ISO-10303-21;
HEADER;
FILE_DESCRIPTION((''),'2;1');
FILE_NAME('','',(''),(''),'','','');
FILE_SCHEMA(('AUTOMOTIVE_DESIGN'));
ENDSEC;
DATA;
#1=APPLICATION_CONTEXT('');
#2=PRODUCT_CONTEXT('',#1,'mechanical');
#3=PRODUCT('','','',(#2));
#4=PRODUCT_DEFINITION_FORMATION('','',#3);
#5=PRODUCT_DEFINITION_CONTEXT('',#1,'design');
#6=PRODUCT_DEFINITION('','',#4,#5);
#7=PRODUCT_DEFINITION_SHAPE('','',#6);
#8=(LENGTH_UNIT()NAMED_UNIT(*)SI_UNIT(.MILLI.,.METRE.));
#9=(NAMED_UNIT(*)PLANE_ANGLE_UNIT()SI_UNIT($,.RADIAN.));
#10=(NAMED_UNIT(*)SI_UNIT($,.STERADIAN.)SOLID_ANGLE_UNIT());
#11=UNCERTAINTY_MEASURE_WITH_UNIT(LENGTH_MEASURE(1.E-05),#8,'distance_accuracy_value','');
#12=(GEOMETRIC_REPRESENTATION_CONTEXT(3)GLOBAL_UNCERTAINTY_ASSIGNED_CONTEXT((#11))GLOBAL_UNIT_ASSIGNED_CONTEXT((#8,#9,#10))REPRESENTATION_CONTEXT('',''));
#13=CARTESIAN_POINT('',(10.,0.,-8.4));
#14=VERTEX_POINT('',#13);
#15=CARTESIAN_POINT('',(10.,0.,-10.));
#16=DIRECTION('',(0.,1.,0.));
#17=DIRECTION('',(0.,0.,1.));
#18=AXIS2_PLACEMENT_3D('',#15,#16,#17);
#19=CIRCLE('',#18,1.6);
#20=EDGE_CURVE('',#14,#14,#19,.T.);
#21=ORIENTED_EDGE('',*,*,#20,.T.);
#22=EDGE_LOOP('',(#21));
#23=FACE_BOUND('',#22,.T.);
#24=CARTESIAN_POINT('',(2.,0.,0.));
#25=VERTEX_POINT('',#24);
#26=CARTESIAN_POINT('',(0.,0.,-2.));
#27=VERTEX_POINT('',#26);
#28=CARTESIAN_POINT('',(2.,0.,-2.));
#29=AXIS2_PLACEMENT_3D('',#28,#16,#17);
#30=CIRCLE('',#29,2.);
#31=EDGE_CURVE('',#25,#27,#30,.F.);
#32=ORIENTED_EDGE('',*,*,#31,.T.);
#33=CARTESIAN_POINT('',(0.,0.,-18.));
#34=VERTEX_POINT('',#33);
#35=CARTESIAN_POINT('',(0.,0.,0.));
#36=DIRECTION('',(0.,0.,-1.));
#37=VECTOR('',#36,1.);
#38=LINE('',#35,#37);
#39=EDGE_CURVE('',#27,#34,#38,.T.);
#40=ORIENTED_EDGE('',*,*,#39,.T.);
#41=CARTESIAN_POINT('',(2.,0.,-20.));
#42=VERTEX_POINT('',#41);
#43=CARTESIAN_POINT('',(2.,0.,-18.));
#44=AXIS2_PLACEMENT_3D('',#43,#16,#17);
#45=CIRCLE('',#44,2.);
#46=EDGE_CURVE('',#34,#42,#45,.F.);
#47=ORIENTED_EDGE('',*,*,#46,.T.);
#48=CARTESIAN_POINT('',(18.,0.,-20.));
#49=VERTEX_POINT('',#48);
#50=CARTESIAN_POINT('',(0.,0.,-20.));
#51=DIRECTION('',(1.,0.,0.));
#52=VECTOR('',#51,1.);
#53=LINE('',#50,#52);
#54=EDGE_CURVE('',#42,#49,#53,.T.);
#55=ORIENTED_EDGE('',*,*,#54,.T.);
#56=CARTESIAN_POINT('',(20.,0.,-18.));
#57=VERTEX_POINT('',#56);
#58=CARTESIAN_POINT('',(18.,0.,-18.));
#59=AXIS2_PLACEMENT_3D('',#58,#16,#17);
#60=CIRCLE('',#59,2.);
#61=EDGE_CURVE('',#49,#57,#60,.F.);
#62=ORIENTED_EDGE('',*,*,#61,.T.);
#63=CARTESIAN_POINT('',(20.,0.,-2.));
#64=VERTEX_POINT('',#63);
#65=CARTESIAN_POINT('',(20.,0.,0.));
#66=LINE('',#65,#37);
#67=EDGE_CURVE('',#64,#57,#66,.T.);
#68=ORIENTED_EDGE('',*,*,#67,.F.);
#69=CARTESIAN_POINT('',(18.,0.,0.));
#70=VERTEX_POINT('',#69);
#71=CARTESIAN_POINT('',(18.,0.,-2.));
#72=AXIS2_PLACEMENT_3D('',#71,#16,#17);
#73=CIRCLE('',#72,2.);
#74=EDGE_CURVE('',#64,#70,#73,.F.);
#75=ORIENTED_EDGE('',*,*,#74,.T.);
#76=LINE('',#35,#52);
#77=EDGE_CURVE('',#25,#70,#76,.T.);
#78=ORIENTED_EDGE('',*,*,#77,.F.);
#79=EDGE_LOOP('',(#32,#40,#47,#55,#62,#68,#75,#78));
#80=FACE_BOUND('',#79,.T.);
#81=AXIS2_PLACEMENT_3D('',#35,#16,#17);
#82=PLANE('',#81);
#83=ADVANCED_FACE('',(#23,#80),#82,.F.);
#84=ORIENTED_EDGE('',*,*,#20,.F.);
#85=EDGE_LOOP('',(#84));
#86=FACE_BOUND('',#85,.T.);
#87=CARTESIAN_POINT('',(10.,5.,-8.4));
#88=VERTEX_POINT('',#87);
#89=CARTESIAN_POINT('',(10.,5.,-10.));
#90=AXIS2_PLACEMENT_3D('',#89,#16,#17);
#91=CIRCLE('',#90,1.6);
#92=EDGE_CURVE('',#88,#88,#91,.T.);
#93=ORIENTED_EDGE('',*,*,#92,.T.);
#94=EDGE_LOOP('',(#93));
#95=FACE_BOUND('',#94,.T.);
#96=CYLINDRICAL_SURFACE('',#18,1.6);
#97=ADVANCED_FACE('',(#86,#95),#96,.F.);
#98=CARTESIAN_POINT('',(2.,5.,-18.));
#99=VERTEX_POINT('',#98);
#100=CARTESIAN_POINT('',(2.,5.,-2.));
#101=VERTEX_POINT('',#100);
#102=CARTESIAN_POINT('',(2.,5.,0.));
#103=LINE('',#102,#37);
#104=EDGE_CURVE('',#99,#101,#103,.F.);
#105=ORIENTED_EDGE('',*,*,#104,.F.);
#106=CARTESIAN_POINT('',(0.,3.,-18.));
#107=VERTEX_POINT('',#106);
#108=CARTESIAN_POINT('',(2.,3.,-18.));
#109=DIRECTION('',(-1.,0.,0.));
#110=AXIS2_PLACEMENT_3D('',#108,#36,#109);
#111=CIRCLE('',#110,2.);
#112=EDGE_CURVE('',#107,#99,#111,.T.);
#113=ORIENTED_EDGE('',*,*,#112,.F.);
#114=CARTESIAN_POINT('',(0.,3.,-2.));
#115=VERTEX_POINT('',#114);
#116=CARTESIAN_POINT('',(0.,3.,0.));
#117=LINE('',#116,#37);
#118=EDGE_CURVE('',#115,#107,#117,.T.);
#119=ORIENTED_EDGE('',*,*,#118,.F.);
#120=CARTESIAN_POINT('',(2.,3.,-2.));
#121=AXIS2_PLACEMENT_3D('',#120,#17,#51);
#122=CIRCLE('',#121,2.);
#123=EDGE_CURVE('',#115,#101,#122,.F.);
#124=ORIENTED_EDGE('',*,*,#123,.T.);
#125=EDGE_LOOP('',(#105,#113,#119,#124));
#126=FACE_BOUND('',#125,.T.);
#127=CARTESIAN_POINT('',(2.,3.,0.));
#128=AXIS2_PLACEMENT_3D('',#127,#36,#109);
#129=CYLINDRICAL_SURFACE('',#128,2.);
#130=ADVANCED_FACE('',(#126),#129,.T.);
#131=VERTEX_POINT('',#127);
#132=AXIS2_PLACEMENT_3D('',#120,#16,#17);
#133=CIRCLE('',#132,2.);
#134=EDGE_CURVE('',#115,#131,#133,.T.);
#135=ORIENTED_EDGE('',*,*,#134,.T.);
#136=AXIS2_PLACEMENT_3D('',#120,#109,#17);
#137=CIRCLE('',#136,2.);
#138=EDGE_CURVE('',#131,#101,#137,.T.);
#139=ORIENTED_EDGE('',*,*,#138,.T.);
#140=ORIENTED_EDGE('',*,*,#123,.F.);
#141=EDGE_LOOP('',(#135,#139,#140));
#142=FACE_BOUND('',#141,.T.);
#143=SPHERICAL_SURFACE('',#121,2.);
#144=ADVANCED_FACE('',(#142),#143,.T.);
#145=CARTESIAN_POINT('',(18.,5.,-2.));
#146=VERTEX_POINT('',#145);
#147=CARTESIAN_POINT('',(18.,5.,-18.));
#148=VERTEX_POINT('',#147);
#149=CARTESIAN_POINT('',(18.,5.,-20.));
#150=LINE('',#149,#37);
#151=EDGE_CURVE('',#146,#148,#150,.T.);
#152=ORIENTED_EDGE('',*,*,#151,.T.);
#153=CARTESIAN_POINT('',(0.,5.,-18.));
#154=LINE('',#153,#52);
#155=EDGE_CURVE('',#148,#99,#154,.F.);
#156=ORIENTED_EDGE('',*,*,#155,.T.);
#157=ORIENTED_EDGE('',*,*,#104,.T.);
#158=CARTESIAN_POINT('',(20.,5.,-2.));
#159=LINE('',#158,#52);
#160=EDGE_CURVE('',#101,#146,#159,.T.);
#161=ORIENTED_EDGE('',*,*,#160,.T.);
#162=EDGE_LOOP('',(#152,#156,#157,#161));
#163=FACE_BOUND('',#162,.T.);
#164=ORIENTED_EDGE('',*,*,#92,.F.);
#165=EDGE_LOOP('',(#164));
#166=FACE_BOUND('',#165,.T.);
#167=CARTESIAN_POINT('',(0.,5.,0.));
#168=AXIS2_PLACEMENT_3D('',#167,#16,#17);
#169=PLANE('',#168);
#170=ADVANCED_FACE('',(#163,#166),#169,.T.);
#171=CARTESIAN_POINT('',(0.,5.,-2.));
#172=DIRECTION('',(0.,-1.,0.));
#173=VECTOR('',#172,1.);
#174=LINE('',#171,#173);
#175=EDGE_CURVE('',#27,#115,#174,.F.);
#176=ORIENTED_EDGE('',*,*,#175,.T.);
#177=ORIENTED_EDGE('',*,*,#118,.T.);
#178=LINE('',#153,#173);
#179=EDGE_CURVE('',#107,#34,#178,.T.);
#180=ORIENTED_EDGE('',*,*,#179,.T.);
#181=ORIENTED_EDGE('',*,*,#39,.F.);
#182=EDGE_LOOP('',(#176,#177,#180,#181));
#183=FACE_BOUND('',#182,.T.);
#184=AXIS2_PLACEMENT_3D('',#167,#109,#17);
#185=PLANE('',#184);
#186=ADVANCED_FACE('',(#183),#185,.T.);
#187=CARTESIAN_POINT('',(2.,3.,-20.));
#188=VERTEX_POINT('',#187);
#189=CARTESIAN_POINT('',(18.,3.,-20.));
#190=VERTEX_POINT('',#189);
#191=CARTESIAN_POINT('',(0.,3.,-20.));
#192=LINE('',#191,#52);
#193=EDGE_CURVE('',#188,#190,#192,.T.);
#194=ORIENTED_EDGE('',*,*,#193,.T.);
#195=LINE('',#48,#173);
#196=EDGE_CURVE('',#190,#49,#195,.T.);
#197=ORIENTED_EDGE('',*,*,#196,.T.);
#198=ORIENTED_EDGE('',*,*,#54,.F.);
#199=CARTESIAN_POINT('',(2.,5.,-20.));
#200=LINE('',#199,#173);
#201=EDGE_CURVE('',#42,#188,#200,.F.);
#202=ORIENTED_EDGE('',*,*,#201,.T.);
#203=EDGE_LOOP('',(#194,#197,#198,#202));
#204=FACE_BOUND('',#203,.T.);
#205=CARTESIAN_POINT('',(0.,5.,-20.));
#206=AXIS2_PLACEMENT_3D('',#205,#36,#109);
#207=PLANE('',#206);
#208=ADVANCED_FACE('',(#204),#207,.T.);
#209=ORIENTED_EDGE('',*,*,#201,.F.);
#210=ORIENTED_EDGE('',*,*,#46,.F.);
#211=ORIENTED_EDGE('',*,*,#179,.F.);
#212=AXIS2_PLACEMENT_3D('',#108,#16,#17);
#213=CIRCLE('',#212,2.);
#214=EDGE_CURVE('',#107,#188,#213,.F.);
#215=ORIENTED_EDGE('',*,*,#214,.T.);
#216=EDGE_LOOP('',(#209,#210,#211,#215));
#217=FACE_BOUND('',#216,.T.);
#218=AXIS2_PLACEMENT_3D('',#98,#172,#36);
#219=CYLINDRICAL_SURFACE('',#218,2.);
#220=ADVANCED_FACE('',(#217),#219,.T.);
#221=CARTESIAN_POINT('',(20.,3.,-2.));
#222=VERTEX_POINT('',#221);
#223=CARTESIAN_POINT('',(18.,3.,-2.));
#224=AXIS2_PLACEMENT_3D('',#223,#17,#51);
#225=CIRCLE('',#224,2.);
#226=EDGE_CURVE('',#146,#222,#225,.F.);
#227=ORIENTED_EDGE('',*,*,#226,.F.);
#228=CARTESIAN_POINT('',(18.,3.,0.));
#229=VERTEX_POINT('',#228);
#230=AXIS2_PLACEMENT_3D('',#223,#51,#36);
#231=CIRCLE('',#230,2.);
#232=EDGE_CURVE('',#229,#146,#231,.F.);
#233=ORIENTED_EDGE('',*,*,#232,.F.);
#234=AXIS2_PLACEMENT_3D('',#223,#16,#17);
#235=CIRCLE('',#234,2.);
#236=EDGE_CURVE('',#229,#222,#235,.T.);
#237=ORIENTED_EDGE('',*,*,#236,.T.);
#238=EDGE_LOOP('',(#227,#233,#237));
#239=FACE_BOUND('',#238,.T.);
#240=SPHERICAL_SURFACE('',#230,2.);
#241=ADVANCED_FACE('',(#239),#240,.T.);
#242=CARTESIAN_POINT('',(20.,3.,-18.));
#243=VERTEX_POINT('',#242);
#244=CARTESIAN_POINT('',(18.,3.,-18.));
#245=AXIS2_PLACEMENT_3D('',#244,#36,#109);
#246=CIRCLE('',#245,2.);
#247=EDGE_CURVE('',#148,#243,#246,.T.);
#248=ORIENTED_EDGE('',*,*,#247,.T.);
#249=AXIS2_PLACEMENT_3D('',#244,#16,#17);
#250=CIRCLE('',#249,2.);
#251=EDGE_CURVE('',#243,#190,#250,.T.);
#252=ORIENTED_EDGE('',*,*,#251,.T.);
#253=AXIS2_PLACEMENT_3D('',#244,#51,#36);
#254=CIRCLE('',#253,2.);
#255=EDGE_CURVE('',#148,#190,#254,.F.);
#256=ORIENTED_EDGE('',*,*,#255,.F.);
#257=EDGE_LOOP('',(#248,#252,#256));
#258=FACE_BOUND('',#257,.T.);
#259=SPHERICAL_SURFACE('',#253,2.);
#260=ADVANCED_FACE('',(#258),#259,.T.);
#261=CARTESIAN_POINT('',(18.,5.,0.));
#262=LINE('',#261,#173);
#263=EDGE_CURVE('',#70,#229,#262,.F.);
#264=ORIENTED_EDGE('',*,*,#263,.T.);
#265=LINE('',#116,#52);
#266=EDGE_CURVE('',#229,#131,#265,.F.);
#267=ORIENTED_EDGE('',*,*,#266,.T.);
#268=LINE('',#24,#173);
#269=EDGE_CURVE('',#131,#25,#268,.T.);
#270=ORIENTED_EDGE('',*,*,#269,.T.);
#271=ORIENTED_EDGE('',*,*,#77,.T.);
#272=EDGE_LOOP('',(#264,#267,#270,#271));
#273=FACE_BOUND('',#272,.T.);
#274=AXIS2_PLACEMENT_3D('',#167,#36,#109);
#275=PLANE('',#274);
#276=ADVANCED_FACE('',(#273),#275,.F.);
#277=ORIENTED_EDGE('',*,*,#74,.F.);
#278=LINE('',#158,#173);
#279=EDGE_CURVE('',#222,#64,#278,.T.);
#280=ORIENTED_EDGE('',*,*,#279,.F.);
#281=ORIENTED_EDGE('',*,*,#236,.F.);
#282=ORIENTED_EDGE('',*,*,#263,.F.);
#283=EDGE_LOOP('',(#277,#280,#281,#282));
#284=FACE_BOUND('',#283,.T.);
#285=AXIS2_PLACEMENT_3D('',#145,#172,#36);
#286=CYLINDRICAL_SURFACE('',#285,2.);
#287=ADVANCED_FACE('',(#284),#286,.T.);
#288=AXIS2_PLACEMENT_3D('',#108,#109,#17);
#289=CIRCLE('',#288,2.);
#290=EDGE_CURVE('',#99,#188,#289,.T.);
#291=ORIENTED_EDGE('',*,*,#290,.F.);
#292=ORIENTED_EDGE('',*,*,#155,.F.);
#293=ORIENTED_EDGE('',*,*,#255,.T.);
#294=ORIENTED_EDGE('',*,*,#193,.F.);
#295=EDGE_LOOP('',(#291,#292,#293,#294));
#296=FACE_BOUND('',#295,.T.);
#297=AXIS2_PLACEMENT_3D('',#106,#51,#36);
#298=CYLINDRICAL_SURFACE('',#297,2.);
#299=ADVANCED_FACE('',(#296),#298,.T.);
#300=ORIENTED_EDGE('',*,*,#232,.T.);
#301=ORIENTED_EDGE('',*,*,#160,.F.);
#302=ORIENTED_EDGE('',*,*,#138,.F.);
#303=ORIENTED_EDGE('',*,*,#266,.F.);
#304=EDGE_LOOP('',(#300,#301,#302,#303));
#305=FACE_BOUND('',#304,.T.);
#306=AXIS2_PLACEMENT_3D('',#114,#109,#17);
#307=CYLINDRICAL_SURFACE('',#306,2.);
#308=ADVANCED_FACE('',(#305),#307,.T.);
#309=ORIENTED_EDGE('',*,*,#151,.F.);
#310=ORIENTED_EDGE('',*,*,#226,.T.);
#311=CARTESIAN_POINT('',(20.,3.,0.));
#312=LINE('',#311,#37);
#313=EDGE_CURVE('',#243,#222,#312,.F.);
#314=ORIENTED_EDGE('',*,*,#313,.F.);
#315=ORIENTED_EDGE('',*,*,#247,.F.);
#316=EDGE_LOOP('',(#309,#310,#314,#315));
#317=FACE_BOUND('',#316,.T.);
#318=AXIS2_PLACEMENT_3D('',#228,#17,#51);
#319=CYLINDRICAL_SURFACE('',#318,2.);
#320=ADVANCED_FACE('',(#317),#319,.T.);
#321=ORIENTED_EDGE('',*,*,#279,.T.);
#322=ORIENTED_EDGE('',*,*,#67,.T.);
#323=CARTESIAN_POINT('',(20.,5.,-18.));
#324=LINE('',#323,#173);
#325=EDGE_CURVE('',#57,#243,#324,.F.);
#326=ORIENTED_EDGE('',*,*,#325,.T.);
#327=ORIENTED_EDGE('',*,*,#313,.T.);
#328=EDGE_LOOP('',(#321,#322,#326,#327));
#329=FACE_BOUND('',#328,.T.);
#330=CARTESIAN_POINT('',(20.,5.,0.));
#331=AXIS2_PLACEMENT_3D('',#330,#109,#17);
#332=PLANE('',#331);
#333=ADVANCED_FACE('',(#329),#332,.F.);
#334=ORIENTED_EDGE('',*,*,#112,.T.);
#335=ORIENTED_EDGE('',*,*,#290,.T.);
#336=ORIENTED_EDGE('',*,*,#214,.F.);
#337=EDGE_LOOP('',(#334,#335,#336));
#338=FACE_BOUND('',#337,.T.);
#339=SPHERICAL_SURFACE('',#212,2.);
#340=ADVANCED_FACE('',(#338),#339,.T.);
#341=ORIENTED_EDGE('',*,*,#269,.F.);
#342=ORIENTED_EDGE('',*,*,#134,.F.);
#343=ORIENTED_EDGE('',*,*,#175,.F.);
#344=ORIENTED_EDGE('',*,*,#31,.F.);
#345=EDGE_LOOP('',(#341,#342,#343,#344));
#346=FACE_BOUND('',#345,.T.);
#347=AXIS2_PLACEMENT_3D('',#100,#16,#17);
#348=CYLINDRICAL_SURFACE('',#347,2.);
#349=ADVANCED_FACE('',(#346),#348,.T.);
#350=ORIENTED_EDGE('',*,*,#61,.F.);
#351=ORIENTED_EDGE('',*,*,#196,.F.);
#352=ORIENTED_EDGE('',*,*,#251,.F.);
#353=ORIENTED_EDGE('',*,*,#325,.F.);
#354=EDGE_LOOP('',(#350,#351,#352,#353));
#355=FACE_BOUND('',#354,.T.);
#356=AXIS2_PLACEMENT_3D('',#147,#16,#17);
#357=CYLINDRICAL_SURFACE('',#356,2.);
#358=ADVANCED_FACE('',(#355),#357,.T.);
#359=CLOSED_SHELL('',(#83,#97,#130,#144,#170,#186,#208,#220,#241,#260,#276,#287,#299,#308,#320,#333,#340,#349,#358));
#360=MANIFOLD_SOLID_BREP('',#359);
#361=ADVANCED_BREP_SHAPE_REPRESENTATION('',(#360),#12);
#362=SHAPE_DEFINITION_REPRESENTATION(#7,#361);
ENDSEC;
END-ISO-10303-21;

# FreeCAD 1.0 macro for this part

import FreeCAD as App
import Part
import Sketcher

V = App.Vector


def edges_at(feature, points):
    """Names of the edges that pass closest to the given points."""
    edges = feature.Shape.Edges
    near = lambda p: min(range(len(edges)), key=lambda i: edges[i].distToShape(Part.Vertex(*p))[0])
    return sorted({f"Edge{near(p) + 1}" for p in points})


def add_polygon(sketch, points):
    """Adds a closed chain of lines whose ends are joined by coincident constraints."""
    first, n = sketch.GeometryCount, len(points)
    for a, b in zip(points, points[1:] + points[:1]):
        sketch.addGeometry(Part.LineSegment(App.Vector(*a, 0), App.Vector(*b, 0)), False)
    for i in range(n):
        sketch.addConstraint(Sketcher.Constraint("Coincident", first + i, 2, first + (i + 1) % n, 1))

doc = App.newDocument("Part")
body = doc.addObject("PartDesign::Body", "Body")

# Sketch on XZ plane
sketch1 = body.newObject("Sketcher::SketchObject", "Sketch")
sketch1.AttachmentSupport = (doc.getObject("XZ_Plane"), [""])
sketch1.MapMode = "FlatFace"
add_polygon(sketch1, [(0, -20), (0, 0), (20, 0), (20, -20)])  # lines 0-3
sketch1.addConstraint([
    Sketcher.Constraint("Vertical", 0),
    Sketcher.Constraint("Horizontal", 1),
    Sketcher.Constraint("Vertical", 2),
    Sketcher.Constraint("Horizontal", 3),
    Sketcher.Constraint("Coincident", 0, 2, -1, 1),
    Sketcher.Constraint("Equal", 3, 0),
    Sketcher.Constraint("DistanceX", 1, 1, 1, 2, 20.0),
])
pad1 = body.newObject("PartDesign::Pad", "Pad")
pad1.Profile = sketch1
pad1.Length = 5
pad1.Reversed = True

# Sketch on XZ plane
sketch2 = body.newObject("Sketcher::SketchObject", "Sketch001")
sketch2.AttachmentSupport = (doc.getObject("XZ_Plane"), [""])
sketch2.MapMode = "FlatFace"
sketch2.AttachmentOffset = App.Placement(V(0, 0, -5), App.Rotation())
sketch2.addGeometry(Part.Circle(V(10, -10, 0), V(0, 0, 1), 1.6), False)
sketch2.addConstraint([
    Sketcher.Constraint("Diameter", 0, 3.2),
    Sketcher.Constraint("DistanceX", -1, 1, 0, 3, 10.0),
    Sketcher.Constraint("DistanceY", 0, 3, -1, 1, 10.0),
])
pocket1 = body.newObject("PartDesign::Pocket", "Pocket")
pocket1.Profile = sketch2
pocket1.Type = "ThroughAll"
pocket1.Reversed = True
doc.recompute()

fillet = body.newObject("PartDesign::Fillet", "Fillet")
fillet.Base = (pocket1, edges_at(pocket1, [
    (10, 5, -20),
    (0, 5, -10),
    (10, 5, 0),
    (0, 2.5, 0),
    (0, 2.5, -20),
    (20, 2.5, -20),
    (20, 2.5, 0),
    (20, 5, -10),
]))
fillet.Radius = 2

doc.recompute()
